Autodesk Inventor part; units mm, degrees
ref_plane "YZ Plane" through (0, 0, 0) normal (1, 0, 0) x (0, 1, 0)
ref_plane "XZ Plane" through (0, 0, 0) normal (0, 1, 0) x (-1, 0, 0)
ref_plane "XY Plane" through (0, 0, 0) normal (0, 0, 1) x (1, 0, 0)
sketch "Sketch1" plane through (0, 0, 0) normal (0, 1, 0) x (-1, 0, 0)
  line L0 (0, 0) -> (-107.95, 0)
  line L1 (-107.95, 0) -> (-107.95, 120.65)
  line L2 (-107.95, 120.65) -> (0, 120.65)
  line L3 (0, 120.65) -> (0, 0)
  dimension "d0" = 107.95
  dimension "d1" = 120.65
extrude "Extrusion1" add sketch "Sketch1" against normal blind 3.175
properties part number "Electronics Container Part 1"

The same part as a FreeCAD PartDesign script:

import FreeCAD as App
import Part
import Sketcher
from FreeCAD import Vector
Q = App.Units.Quantity

doc = App.newDocument("Part")
params = doc.addObject("Spreadsheet::Sheet", "Params")
for row, (alias, value) in enumerate([
    ("sketch1_width", "4.25 in"),
    ("sketch1_height", "4.75 in"),
    ("pad1_length", "0.125 in"),
], start=1):
    params.set(f"A{row}", alias)
    params.set(f"B{row}", "=" + value)
    params.setAlias(f"B{row}", alias)

body = doc.addObject("PartDesign::Body", "Body")

# Sketch on XZ plane
sketch1 = body.newObject("Sketcher::SketchObject", "Sketch")
sketch1.AttachmentSupport = (doc.getObject("XZ_Plane"), [""])
sketch1.MapMode = "FlatFace"
sketch1.addGeometry([
    Part.LineSegment(Vector(108, 0, 0), Vector(0, 0, 0)),
    Part.LineSegment(Vector(0, 0, 0), Vector(0, 121, 0)),
    Part.LineSegment(Vector(0, 121, 0), Vector(108, 121, 0)),
    Part.LineSegment(Vector(108, 121, 0), Vector(108, 0, 0)),
], False)
sketch1.addConstraint([
    Sketcher.Constraint("Coincident", 0, 2, 1, 1),
    Sketcher.Constraint("Coincident", 1, 2, 2, 1),
    Sketcher.Constraint("Coincident", 2, 2, 3, 1),
    Sketcher.Constraint("Coincident", 3, 2, 0, 1),
    Sketcher.Constraint("Horizontal", 0),
    Sketcher.Constraint("Vertical", 1),
    Sketcher.Constraint("Horizontal", 2),
    Sketcher.Constraint("Vertical", 3),
    Sketcher.Constraint("Coincident", 0, 2, -1, 1),
    Sketcher.Constraint("DistanceX", 0, 2, 0, 1, Q("4.25 in")),
    Sketcher.Constraint("DistanceY", 1, 1, 1, 2, Q("4.75 in")),
])
sketch1.setExpression("Constraints[9]", "Params.sketch1_width")
sketch1.setExpression("Constraints[10]", "Params.sketch1_height")
pad1 = body.newObject("PartDesign::Pad", "Pad")
pad1.Profile = sketch1
pad1.setExpression("Length", "Params.pad1_length")

doc.recompute()
